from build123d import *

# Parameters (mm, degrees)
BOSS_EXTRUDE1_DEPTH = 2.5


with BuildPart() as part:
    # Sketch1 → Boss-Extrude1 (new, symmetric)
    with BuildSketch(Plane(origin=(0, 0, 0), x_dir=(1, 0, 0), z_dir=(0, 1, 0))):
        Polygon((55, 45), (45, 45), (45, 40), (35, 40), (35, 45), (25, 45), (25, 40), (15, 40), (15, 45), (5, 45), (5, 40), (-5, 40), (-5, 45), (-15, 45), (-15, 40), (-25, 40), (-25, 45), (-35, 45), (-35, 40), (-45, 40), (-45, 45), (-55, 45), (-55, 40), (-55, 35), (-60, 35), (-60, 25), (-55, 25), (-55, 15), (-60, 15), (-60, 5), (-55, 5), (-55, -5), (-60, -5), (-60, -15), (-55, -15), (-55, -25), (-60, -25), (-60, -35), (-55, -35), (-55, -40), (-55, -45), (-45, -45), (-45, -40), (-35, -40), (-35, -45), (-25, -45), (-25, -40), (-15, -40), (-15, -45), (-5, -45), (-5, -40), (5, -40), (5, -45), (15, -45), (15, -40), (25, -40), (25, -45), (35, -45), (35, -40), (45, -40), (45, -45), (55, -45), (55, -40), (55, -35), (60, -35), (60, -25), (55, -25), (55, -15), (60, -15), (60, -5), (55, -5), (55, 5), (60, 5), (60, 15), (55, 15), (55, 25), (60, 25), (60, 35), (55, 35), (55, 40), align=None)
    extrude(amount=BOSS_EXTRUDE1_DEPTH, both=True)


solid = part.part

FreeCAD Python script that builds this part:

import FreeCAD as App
import Part
import Sketcher

doc = App.newDocument("Part")
body = doc.addObject("PartDesign::Body", "Body")

# Sketch on XZ plane
sketch1 = body.newObject("Sketcher::SketchObject", "Sketch")
sketch1.AttachmentSupport = (doc.getObject("XZ_Plane"), [""])
sketch1.MapMode = "FlatFace"
sketch1.addGeometry(Part.LineSegment(App.Vector(55, -45, 0), App.Vector(45, -45, 0)), False)
sketch1.addGeometry(Part.LineSegment(App.Vector(45, -45, 0), App.Vector(45, -40, 0)), False)
sketch1.addGeometry(Part.LineSegment(App.Vector(45, -40, 0), App.Vector(35, -40, 0)), False)
sketch1.addGeometry(Part.LineSegment(App.Vector(35, -40, 0), App.Vector(35, -45, 0)), False)
sketch1.addGeometry(Part.LineSegment(App.Vector(35, -45, 0), App.Vector(25, -45, 0)), False)
sketch1.addGeometry(Part.LineSegment(App.Vector(25, -45, 0), App.Vector(25, -40, 0)), False)
sketch1.addGeometry(Part.LineSegment(App.Vector(25, -40, 0), App.Vector(15, -40, 0)), False)
sketch1.addGeometry(Part.LineSegment(App.Vector(15, -40, 0), App.Vector(15, -45, 0)), False)
sketch1.addGeometry(Part.LineSegment(App.Vector(15, -45, 0), App.Vector(5, -45, 0)), False)
sketch1.addGeometry(Part.LineSegment(App.Vector(5, -45, 0), App.Vector(5, -40, 0)), False)
sketch1.addGeometry(Part.LineSegment(App.Vector(5, -40, 0), App.Vector(-5, -40, 0)), False)
sketch1.addGeometry(Part.LineSegment(App.Vector(-5, -40, 0), App.Vector(-5, -45, 0)), False)
sketch1.addGeometry(Part.LineSegment(App.Vector(-5, -45, 0), App.Vector(-15, -45, 0)), False)
sketch1.addGeometry(Part.LineSegment(App.Vector(-15, -45, 0), App.Vector(-15, -40, 0)), False)
sketch1.addGeometry(Part.LineSegment(App.Vector(-15, -40, 0), App.Vector(-25, -40, 0)), False)
sketch1.addGeometry(Part.LineSegment(App.Vector(-25, -40, 0), App.Vector(-25, -45, 0)), False)
sketch1.addGeometry(Part.LineSegment(App.Vector(-25, -45, 0), App.Vector(-35, -45, 0)), False)
sketch1.addGeometry(Part.LineSegment(App.Vector(-35, -45, 0), App.Vector(-35, -40, 0)), False)
sketch1.addGeometry(Part.LineSegment(App.Vector(-35, -40, 0), App.Vector(-45, -40, 0)), False)
sketch1.addGeometry(Part.LineSegment(App.Vector(-45, -40, 0), App.Vector(-45, -45, 0)), False)
sketch1.addGeometry(Part.LineSegment(App.Vector(-45, -45, 0), App.Vector(-55, -45, 0)), False)
sketch1.addGeometry(Part.LineSegment(App.Vector(-55, -45, 0), App.Vector(-55, -35, 0)), False)
sketch1.addGeometry(Part.LineSegment(App.Vector(-55, -35, 0), App.Vector(-60, -35, 0)), False)
sketch1.addGeometry(Part.LineSegment(App.Vector(-60, -35, 0), App.Vector(-60, -25, 0)), False)
sketch1.addGeometry(Part.LineSegment(App.Vector(-60, -25, 0), App.Vector(-55, -25, 0)), False)
sketch1.addGeometry(Part.LineSegment(App.Vector(-55, -25, 0), App.Vector(-55, -15, 0)), False)
sketch1.addGeometry(Part.LineSegment(App.Vector(-55, -15, 0), App.Vector(-60, -15, 0)), False)
sketch1.addGeometry(Part.LineSegment(App.Vector(-60, -15, 0), App.Vector(-60, -5, 0)), False)
sketch1.addGeometry(Part.LineSegment(App.Vector(-60, -5, 0), App.Vector(-55, -5, 0)), False)
sketch1.addGeometry(Part.LineSegment(App.Vector(-55, -5, 0), App.Vector(-55, 5, 0)), False)
sketch1.addGeometry(Part.LineSegment(App.Vector(-55, 5, 0), App.Vector(-60, 5, 0)), False)
sketch1.addGeometry(Part.LineSegment(App.Vector(-60, 5, 0), App.Vector(-60, 15, 0)), False)
sketch1.addGeometry(Part.LineSegment(App.Vector(-60, 15, 0), App.Vector(-55, 15, 0)), False)
sketch1.addGeometry(Part.LineSegment(App.Vector(-55, 15, 0), App.Vector(-55, 25, 0)), False)
sketch1.addGeometry(Part.LineSegment(App.Vector(-55, 25, 0), App.Vector(-60, 25, 0)), False)
sketch1.addGeometry(Part.LineSegment(App.Vector(-60, 25, 0), App.Vector(-60, 35, 0)), False)
sketch1.addGeometry(Part.LineSegment(App.Vector(-60, 35, 0), App.Vector(-55, 35, 0)), False)
sketch1.addGeometry(Part.LineSegment(App.Vector(-55, 35, 0), App.Vector(-55, 45, 0)), False)
sketch1.addGeometry(Part.LineSegment(App.Vector(-55, 45, 0), App.Vector(-45, 45, 0)), False)
sketch1.addGeometry(Part.LineSegment(App.Vector(-45, 45, 0), App.Vector(-45, 40, 0)), False)
sketch1.addGeometry(Part.LineSegment(App.Vector(-45, 40, 0), App.Vector(-35, 40, 0)), False)
sketch1.addGeometry(Part.LineSegment(App.Vector(-35, 40, 0), App.Vector(-35, 45, 0)), False)
sketch1.addGeometry(Part.LineSegment(App.Vector(-35, 45, 0), App.Vector(-25, 45, 0)), False)
sketch1.addGeometry(Part.LineSegment(App.Vector(-25, 45, 0), App.Vector(-25, 40, 0)), False)
sketch1.addGeometry(Part.LineSegment(App.Vector(-25, 40, 0), App.Vector(-15, 40, 0)), False)
sketch1.addGeometry(Part.LineSegment(App.Vector(-15, 40, 0), App.Vector(-15, 45, 0)), False)
sketch1.addGeometry(Part.LineSegment(App.Vector(-15, 45, 0), App.Vector(-5, 45, 0)), False)
sketch1.addGeometry(Part.LineSegment(App.Vector(-5, 45, 0), App.Vector(-5, 40, 0)), False)
sketch1.addGeometry(Part.LineSegment(App.Vector(-5, 40, 0), App.Vector(5, 40, 0)), False)
sketch1.addGeometry(Part.LineSegment(App.Vector(5, 40, 0), App.Vector(5, 45, 0)), False)
sketch1.addGeometry(Part.LineSegment(App.Vector(5, 45, 0), App.Vector(15, 45, 0)), False)
sketch1.addGeometry(Part.LineSegment(App.Vector(15, 45, 0), App.Vector(15, 40, 0)), False)
sketch1.addGeometry(Part.LineSegment(App.Vector(15, 40, 0), App.Vector(25, 40, 0)), False)
sketch1.addGeometry(Part.LineSegment(App.Vector(25, 40, 0), App.Vector(25, 45, 0)), False)
sketch1.addGeometry(Part.LineSegment(App.Vector(25, 45, 0), App.Vector(35, 45, 0)), False)
sketch1.addGeometry(Part.LineSegment(App.Vector(35, 45, 0), App.Vector(35, 40, 0)), False)
sketch1.addGeometry(Part.LineSegment(App.Vector(35, 40, 0), App.Vector(45, 40, 0)), False)
sketch1.addGeometry(Part.LineSegment(App.Vector(45, 40, 0), App.Vector(45, 45, 0)), False)
sketch1.addGeometry(Part.LineSegment(App.Vector(45, 45, 0), App.Vector(55, 45, 0)), False)
sketch1.addGeometry(Part.LineSegment(App.Vector(55, 45, 0), App.Vector(55, 35, 0)), False)
sketch1.addGeometry(Part.LineSegment(App.Vector(55, 35, 0), App.Vector(60, 35, 0)), False)
sketch1.addGeometry(Part.LineSegment(App.Vector(60, 35, 0), App.Vector(60, 25, 0)), False)
sketch1.addGeometry(Part.LineSegment(App.Vector(60, 25, 0), App.Vector(55, 25, 0)), False)
sketch1.addGeometry(Part.LineSegment(App.Vector(55, 25, 0), App.Vector(55, 15, 0)), False)
sketch1.addGeometry(Part.LineSegment(App.Vector(55, 15, 0), App.Vector(60, 15, 0)), False)
sketch1.addGeometry(Part.LineSegment(App.Vector(60, 15, 0), App.Vector(60, 5, 0)), False)
sketch1.addGeometry(Part.LineSegment(App.Vector(60, 5, 0), App.Vector(55, 5, 0)), False)
sketch1.addGeometry(Part.LineSegment(App.Vector(55, 5, 0), App.Vector(55, -5, 0)), False)
sketch1.addGeometry(Part.LineSegment(App.Vector(55, -5, 0), App.Vector(60, -5, 0)), False)
sketch1.addGeometry(Part.LineSegment(App.Vector(60, -5, 0), App.Vector(60, -15, 0)), False)
sketch1.addGeometry(Part.LineSegment(App.Vector(60, -15, 0), App.Vector(55, -15, 0)), False)
sketch1.addGeometry(Part.LineSegment(App.Vector(55, -15, 0), App.Vector(55, -25, 0)), False)
sketch1.addGeometry(Part.LineSegment(App.Vector(55, -25, 0), App.Vector(60, -25, 0)), False)
sketch1.addGeometry(Part.LineSegment(App.Vector(60, -25, 0), App.Vector(60, -35, 0)), False)
sketch1.addGeometry(Part.LineSegment(App.Vector(60, -35, 0), App.Vector(55, -35, 0)), False)
sketch1.addGeometry(Part.LineSegment(App.Vector(55, -35, 0), App.Vector(55, -45, 0)), False)
sketch1.addConstraint(Sketcher.Constraint("Coincident", 0, 2, 1, 1))
sketch1.addConstraint(Sketcher.Constraint("Coincident", 1, 2, 2, 1))
sketch1.addConstraint(Sketcher.Constraint("Coincident", 2, 2, 3, 1))
sketch1.addConstraint(Sketcher.Constraint("Coincident", 3, 2, 4, 1))
sketch1.addConstraint(Sketcher.Constraint("Coincident", 4, 2, 5, 1))
sketch1.addConstraint(Sketcher.Constraint("Coincident", 5, 2, 6, 1))
sketch1.addConstraint(Sketcher.Constraint("Coincident", 6, 2, 7, 1))
sketch1.addConstraint(Sketcher.Constraint("Coincident", 7, 2, 8, 1))
sketch1.addConstraint(Sketcher.Constraint("Coincident", 8, 2, 9, 1))
sketch1.addConstraint(Sketcher.Constraint("Coincident", 9, 2, 10, 1))
sketch1.addConstraint(Sketcher.Constraint("Coincident", 10, 2, 11, 1))
sketch1.addConstraint(Sketcher.Constraint("Coincident", 11, 2, 12, 1))
sketch1.addConstraint(Sketcher.Constraint("Coincident", 12, 2, 13, 1))
sketch1.addConstraint(Sketcher.Constraint("Coincident", 13, 2, 14, 1))
sketch1.addConstraint(Sketcher.Constraint("Coincident", 14, 2, 15, 1))
sketch1.addConstraint(Sketcher.Constraint("Coincident", 15, 2, 16, 1))
sketch1.addConstraint(Sketcher.Constraint("Coincident", 16, 2, 17, 1))
sketch1.addConstraint(Sketcher.Constraint("Coincident", 17, 2, 18, 1))
sketch1.addConstraint(Sketcher.Constraint("Coincident", 18, 2, 19, 1))
sketch1.addConstraint(Sketcher.Constraint("Coincident", 19, 2, 20, 1))
sketch1.addConstraint(Sketcher.Constraint("Coincident", 20, 2, 21, 1))
sketch1.addConstraint(Sketcher.Constraint("Coincident", 21, 2, 22, 1))
sketch1.addConstraint(Sketcher.Constraint("Coincident", 22, 2, 23, 1))
sketch1.addConstraint(Sketcher.Constraint("Coincident", 23, 2, 24, 1))
sketch1.addConstraint(Sketcher.Constraint("Coincident", 24, 2, 25, 1))
sketch1.addConstraint(Sketcher.Constraint("Coincident", 25, 2, 26, 1))
sketch1.addConstraint(Sketcher.Constraint("Coincident", 26, 2, 27, 1))
sketch1.addConstraint(Sketcher.Constraint("Coincident", 27, 2, 28, 1))
sketch1.addConstraint(Sketcher.Constraint("Coincident", 28, 2, 29, 1))
sketch1.addConstraint(Sketcher.Constraint("Coincident", 29, 2, 30, 1))
sketch1.addConstraint(Sketcher.Constraint("Coincident", 30, 2, 31, 1))
sketch1.addConstraint(Sketcher.Constraint("Coincident", 31, 2, 32, 1))
sketch1.addConstraint(Sketcher.Constraint("Coincident", 32, 2, 33, 1))
sketch1.addConstraint(Sketcher.Constraint("Coincident", 33, 2, 34, 1))
sketch1.addConstraint(Sketcher.Constraint("Coincident", 34, 2, 35, 1))
sketch1.addConstraint(Sketcher.Constraint("Coincident", 35, 2, 36, 1))
sketch1.addConstraint(Sketcher.Constraint("Coincident", 36, 2, 37, 1))
sketch1.addConstraint(Sketcher.Constraint("Coincident", 37, 2, 38, 1))
sketch1.addConstraint(Sketcher.Constraint("Coincident", 38, 2, 39, 1))
sketch1.addConstraint(Sketcher.Constraint("Coincident", 39, 2, 40, 1))
sketch1.addConstraint(Sketcher.Constraint("Coincident", 40, 2, 41, 1))
sketch1.addConstraint(Sketcher.Constraint("Coincident", 41, 2, 42, 1))
sketch1.addConstraint(Sketcher.Constraint("Coincident", 42, 2, 43, 1))
sketch1.addConstraint(Sketcher.Constraint("Coincident", 43, 2, 44, 1))
sketch1.addConstraint(Sketcher.Constraint("Coincident", 44, 2, 45, 1))
sketch1.addConstraint(Sketcher.Constraint("Coincident", 45, 2, 46, 1))
sketch1.addConstraint(Sketcher.Constraint("Coincident", 46, 2, 47, 1))
sketch1.addConstraint(Sketcher.Constraint("Coincident", 47, 2, 48, 1))
sketch1.addConstraint(Sketcher.Constraint("Coincident", 48, 2, 49, 1))
sketch1.addConstraint(Sketcher.Constraint("Coincident", 49, 2, 50, 1))
sketch1.addConstraint(Sketcher.Constraint("Coincident", 50, 2, 51, 1))
sketch1.addConstraint(Sketcher.Constraint("Coincident", 51, 2, 52, 1))
sketch1.addConstraint(Sketcher.Constraint("Coincident", 52, 2, 53, 1))
sketch1.addConstraint(Sketcher.Constraint("Coincident", 53, 2, 54, 1))
sketch1.addConstraint(Sketcher.Constraint("Coincident", 54, 2, 55, 1))
sketch1.addConstraint(Sketcher.Constraint("Coincident", 55, 2, 56, 1))
sketch1.addConstraint(Sketcher.Constraint("Coincident", 56, 2, 57, 1))
sketch1.addConstraint(Sketcher.Constraint("Coincident", 57, 2, 58, 1))
sketch1.addConstraint(Sketcher.Constraint("Coincident", 58, 2, 59, 1))
sketch1.addConstraint(Sketcher.Constraint("Coincident", 59, 2, 60, 1))
sketch1.addConstraint(Sketcher.Constraint("Coincident", 60, 2, 61, 1))
sketch1.addConstraint(Sketcher.Constraint("Coincident", 61, 2, 62, 1))
sketch1.addConstraint(Sketcher.Constraint("Coincident", 62, 2, 63, 1))
sketch1.addConstraint(Sketcher.Constraint("Coincident", 63, 2, 64, 1))
sketch1.addConstraint(Sketcher.Constraint("Coincident", 64, 2, 65, 1))
sketch1.addConstraint(Sketcher.Constraint("Coincident", 65, 2, 66, 1))
sketch1.addConstraint(Sketcher.Constraint("Coincident", 66, 2, 67, 1))
sketch1.addConstraint(Sketcher.Constraint("Coincident", 67, 2, 68, 1))
sketch1.addConstraint(Sketcher.Constraint("Coincident", 68, 2, 69, 1))
sketch1.addConstraint(Sketcher.Constraint("Coincident", 69, 2, 70, 1))
sketch1.addConstraint(Sketcher.Constraint("Coincident", 70, 2, 71, 1))
sketch1.addConstraint(Sketcher.Constraint("Coincident", 71, 2, 72, 1))
sketch1.addConstraint(Sketcher.Constraint("Coincident", 72, 2, 73, 1))
sketch1.addConstraint(Sketcher.Constraint("Coincident", 73, 2, 74, 1))
sketch1.addConstraint(Sketcher.Constraint("Coincident", 74, 2, 75, 1))
sketch1.addConstraint(Sketcher.Constraint("Coincident", 75, 2, 0, 1))
sketch1.addConstraint(Sketcher.Constraint("Horizontal", 0))
sketch1.addConstraint(Sketcher.Constraint("Vertical", 1))
sketch1.addConstraint(Sketcher.Constraint("Horizontal", 2))
sketch1.addConstraint(Sketcher.Constraint("Vertical", 3))
sketch1.addConstraint(Sketcher.Constraint("Horizontal", 4))
sketch1.addConstraint(Sketcher.Constraint("Vertical", 5))
sketch1.addConstraint(Sketcher.Constraint("Horizontal", 6))
sketch1.addConstraint(Sketcher.Constraint("Vertical", 7))
sketch1.addConstraint(Sketcher.Constraint("Horizontal", 8))
sketch1.addConstraint(Sketcher.Constraint("Vertical", 9))
sketch1.addConstraint(Sketcher.Constraint("Horizontal", 10))
sketch1.addConstraint(Sketcher.Constraint("Vertical", 11))
sketch1.addConstraint(Sketcher.Constraint("Horizontal", 12))
sketch1.addConstraint(Sketcher.Constraint("Vertical", 13))
sketch1.addConstraint(Sketcher.Constraint("Horizontal", 14))
sketch1.addConstraint(Sketcher.Constraint("Vertical", 15))
sketch1.addConstraint(Sketcher.Constraint("Horizontal", 16))
sketch1.addConstraint(Sketcher.Constraint("Vertical", 17))
sketch1.addConstraint(Sketcher.Constraint("Horizontal", 18))
sketch1.addConstraint(Sketcher.Constraint("Vertical", 19))
sketch1.addConstraint(Sketcher.Constraint("Horizontal", 20))
sketch1.addConstraint(Sketcher.Constraint("Vertical", 21))
sketch1.addConstraint(Sketcher.Constraint("Horizontal", 22))
sketch1.addConstraint(Sketcher.Constraint("Vertical", 23))
sketch1.addConstraint(Sketcher.Constraint("Horizontal", 24))
sketch1.addConstraint(Sketcher.Constraint("Vertical", 25))
sketch1.addConstraint(Sketcher.Constraint("Horizontal", 26))
sketch1.addConstraint(Sketcher.Constraint("Vertical", 27))
sketch1.addConstraint(Sketcher.Constraint("Horizontal", 28))
sketch1.addConstraint(Sketcher.Constraint("Vertical", 29))
sketch1.addConstraint(Sketcher.Constraint("Horizontal", 30))
sketch1.addConstraint(Sketcher.Constraint("Vertical", 31))
sketch1.addConstraint(Sketcher.Constraint("Horizontal", 32))
sketch1.addConstraint(Sketcher.Constraint("Vertical", 33))
sketch1.addConstraint(Sketcher.Constraint("Horizontal", 34))
sketch1.addConstraint(Sketcher.Constraint("Vertical", 35))
sketch1.addConstraint(Sketcher.Constraint("Horizontal", 36))
sketch1.addConstraint(Sketcher.Constraint("Vertical", 37))
sketch1.addConstraint(Sketcher.Constraint("Horizontal", 38))
sketch1.addConstraint(Sketcher.Constraint("Vertical", 39))
sketch1.addConstraint(Sketcher.Constraint("Horizontal", 40))
sketch1.addConstraint(Sketcher.Constraint("Vertical", 41))
sketch1.addConstraint(Sketcher.Constraint("Horizontal", 42))
sketch1.addConstraint(Sketcher.Constraint("Vertical", 43))
sketch1.addConstraint(Sketcher.Constraint("Horizontal", 44))
sketch1.addConstraint(Sketcher.Constraint("Vertical", 45))
sketch1.addConstraint(Sketcher.Constraint("Horizontal", 46))
sketch1.addConstraint(Sketcher.Constraint("Vertical", 47))
sketch1.addConstraint(Sketcher.Constraint("Horizontal", 48))
sketch1.addConstraint(Sketcher.Constraint("Vertical", 49))
sketch1.addConstraint(Sketcher.Constraint("Horizontal", 50))
sketch1.addConstraint(Sketcher.Constraint("Vertical", 51))
sketch1.addConstraint(Sketcher.Constraint("Horizontal", 52))
sketch1.addConstraint(Sketcher.Constraint("Vertical", 53))
sketch1.addConstraint(Sketcher.Constraint("Horizontal", 54))
sketch1.addConstraint(Sketcher.Constraint("Vertical", 55))
sketch1.addConstraint(Sketcher.Constraint("Horizontal", 56))
sketch1.addConstraint(Sketcher.Constraint("Vertical", 57))
sketch1.addConstraint(Sketcher.Constraint("Horizontal", 58))
sketch1.addConstraint(Sketcher.Constraint("Vertical", 59))
sketch1.addConstraint(Sketcher.Constraint("Horizontal", 60))
sketch1.addConstraint(Sketcher.Constraint("Vertical", 61))
sketch1.addConstraint(Sketcher.Constraint("Horizontal", 62))
sketch1.addConstraint(Sketcher.Constraint("Vertical", 63))
sketch1.addConstraint(Sketcher.Constraint("Horizontal", 64))
sketch1.addConstraint(Sketcher.Constraint("Vertical", 65))
sketch1.addConstraint(Sketcher.Constraint("Horizontal", 66))
sketch1.addConstraint(Sketcher.Constraint("Vertical", 67))
sketch1.addConstraint(Sketcher.Constraint("Horizontal", 68))
sketch1.addConstraint(Sketcher.Constraint("Vertical", 69))
sketch1.addConstraint(Sketcher.Constraint("Horizontal", 70))
sketch1.addConstraint(Sketcher.Constraint("Vertical", 71))
sketch1.addConstraint(Sketcher.Constraint("Horizontal", 72))
sketch1.addConstraint(Sketcher.Constraint("Vertical", 73))
sketch1.addConstraint(Sketcher.Constraint("Horizontal", 74))
sketch1.addConstraint(Sketcher.Constraint("Vertical", 75))
sketch1.addConstraint(Sketcher.Constraint("Symmetric", 0, 2, 38, 2, -1, 1))
sketch1.addConstraint(Sketcher.Constraint("Symmetric", 2, 2, 40, 2, -1, 1))
sketch1.addConstraint(Sketcher.Constraint("Symmetric", 4, 2, 42, 2, -1, 1))
sketch1.addConstraint(Sketcher.Constraint("Symmetric", 6, 2, 44, 2, -1, 1))
sketch1.addConstraint(Sketcher.Constraint("Symmetric", 8, 2, 46, 2, -1, 1))
sketch1.addConstraint(Sketcher.Constraint("Symmetric", 10, 2, 48, 2, -1, 1))
sketch1.addConstraint(Sketcher.Constraint("Symmetric", 12, 2, 50, 2, -1, 1))
sketch1.addConstraint(Sketcher.Constraint("Symmetric", 14, 2, 52, 2, -1, 1))
sketch1.addConstraint(Sketcher.Constraint("Symmetric", 16, 2, 54, 2, -1, 1))
sketch1.addConstraint(Sketcher.Constraint("Symmetric", 18, 2, 56, 2, -1, 1))
sketch1.addConstraint(Sketcher.Constraint("Symmetric", 20, 2, 58, 2, -1, 1))
sketch1.addConstraint(Sketcher.Constraint("Symmetric", 22, 2, 60, 2, -1, 1))
sketch1.addConstraint(Sketcher.Constraint("Symmetric", 24, 2, 62, 2, -1, 1))
sketch1.addConstraint(Sketcher.Constraint("Symmetric", 26, 2, 64, 2, -1, 1))
sketch1.addConstraint(Sketcher.Constraint("Symmetric", 28, 2, 66, 2, -1, 1))
sketch1.addConstraint(Sketcher.Constraint("Symmetric", 30, 2, 68, 2, -1, 1))
sketch1.addConstraint(Sketcher.Constraint("Symmetric", 32, 2, 70, 2, -1, 1))
sketch1.addConstraint(Sketcher.Constraint("Symmetric", 34, 2, 72, 2, -1, 1))
sketch1.addConstraint(Sketcher.Constraint("Symmetric", 36, 2, 74, 2, -1, 1))
sketch1.addConstraint(Sketcher.Constraint("Symmetric", 8, 2, 11, 2, -2))
sketch1.addConstraint(Sketcher.Constraint("Symmetric", 6, 2, 13, 2, -2))
sketch1.addConstraint(Sketcher.Constraint("Symmetric", 4, 2, 15, 2, -2))
sketch1.addConstraint(Sketcher.Constraint("Symmetric", 2, 2, 17, 2, -2))
sketch1.addConstraint(Sketcher.Constraint("Symmetric", 0, 2, 19, 2, -2))
sketch1.addConstraint(Sketcher.Constraint("Symmetric", 36, 2, 59, 2, -2))
sketch1.addConstraint(Sketcher.Constraint("Symmetric", 34, 2, 61, 2, -2))
sketch1.addConstraint(Sketcher.Constraint("Symmetric", 32, 2, 63, 2, -2))
sketch1.addConstraint(Sketcher.Constraint("Symmetric", 30, 2, 65, 2, -2))
sketch1.addConstraint(Sketcher.Constraint("Horizontal", 0, 2, 3, 2))
sketch1.addConstraint(Sketcher.Constraint("Horizontal", 2, 2, 5, 2))
sketch1.addConstraint(Sketcher.Constraint("Horizontal", 4, 2, 7, 2))
sketch1.addConstraint(Sketcher.Constraint("Horizontal", 6, 2, 9, 2))
sketch1.addConstraint(Sketcher.Constraint("Vertical", 21, 2, 24, 2))
sketch1.addConstraint(Sketcher.Constraint("Vertical", 23, 2, 26, 2))
sketch1.addConstraint(Sketcher.Constraint("Vertical", 25, 2, 28, 2))
sketch1.addConstraint(Sketcher.Constraint("Equal", 0, 2))
sketch1.addConstraint(Sketcher.Constraint("Equal", 2, 4))
sketch1.addConstraint(Sketcher.Constraint("Equal", 4, 6))
sketch1.addConstraint(Sketcher.Constraint("Equal", 6, 8))
sketch1.addConstraint(Sketcher.Constraint("Equal", 8, 10))
sketch1.addConstraint(Sketcher.Constraint("Equal", 74, 1))
sketch1.addConstraint(Sketcher.Constraint("Equal", 58, 21))
sketch1.addConstraint(Sketcher.Constraint("Equal", 21, 23))
sketch1.addConstraint(Sketcher.Constraint("Equal", 23, 25))
sketch1.addConstraint(Sketcher.Constraint("Equal", 25, 27))
sketch1.addConstraint(Sketcher.Constraint("Equal", 27, 29))
sketch1.addConstraint(Sketcher.Constraint("DistanceX", 0, 2, 0, 1, 10.0))
sketch1.addConstraint(Sketcher.Constraint("DistanceX", 22, 2, 22, 1, 5.0))
pad1 = body.newObject("PartDesign::Pad", "Pad")
pad1.Profile = sketch1
pad1.Length = 5
pad1.Midplane = True

doc.recompute()
